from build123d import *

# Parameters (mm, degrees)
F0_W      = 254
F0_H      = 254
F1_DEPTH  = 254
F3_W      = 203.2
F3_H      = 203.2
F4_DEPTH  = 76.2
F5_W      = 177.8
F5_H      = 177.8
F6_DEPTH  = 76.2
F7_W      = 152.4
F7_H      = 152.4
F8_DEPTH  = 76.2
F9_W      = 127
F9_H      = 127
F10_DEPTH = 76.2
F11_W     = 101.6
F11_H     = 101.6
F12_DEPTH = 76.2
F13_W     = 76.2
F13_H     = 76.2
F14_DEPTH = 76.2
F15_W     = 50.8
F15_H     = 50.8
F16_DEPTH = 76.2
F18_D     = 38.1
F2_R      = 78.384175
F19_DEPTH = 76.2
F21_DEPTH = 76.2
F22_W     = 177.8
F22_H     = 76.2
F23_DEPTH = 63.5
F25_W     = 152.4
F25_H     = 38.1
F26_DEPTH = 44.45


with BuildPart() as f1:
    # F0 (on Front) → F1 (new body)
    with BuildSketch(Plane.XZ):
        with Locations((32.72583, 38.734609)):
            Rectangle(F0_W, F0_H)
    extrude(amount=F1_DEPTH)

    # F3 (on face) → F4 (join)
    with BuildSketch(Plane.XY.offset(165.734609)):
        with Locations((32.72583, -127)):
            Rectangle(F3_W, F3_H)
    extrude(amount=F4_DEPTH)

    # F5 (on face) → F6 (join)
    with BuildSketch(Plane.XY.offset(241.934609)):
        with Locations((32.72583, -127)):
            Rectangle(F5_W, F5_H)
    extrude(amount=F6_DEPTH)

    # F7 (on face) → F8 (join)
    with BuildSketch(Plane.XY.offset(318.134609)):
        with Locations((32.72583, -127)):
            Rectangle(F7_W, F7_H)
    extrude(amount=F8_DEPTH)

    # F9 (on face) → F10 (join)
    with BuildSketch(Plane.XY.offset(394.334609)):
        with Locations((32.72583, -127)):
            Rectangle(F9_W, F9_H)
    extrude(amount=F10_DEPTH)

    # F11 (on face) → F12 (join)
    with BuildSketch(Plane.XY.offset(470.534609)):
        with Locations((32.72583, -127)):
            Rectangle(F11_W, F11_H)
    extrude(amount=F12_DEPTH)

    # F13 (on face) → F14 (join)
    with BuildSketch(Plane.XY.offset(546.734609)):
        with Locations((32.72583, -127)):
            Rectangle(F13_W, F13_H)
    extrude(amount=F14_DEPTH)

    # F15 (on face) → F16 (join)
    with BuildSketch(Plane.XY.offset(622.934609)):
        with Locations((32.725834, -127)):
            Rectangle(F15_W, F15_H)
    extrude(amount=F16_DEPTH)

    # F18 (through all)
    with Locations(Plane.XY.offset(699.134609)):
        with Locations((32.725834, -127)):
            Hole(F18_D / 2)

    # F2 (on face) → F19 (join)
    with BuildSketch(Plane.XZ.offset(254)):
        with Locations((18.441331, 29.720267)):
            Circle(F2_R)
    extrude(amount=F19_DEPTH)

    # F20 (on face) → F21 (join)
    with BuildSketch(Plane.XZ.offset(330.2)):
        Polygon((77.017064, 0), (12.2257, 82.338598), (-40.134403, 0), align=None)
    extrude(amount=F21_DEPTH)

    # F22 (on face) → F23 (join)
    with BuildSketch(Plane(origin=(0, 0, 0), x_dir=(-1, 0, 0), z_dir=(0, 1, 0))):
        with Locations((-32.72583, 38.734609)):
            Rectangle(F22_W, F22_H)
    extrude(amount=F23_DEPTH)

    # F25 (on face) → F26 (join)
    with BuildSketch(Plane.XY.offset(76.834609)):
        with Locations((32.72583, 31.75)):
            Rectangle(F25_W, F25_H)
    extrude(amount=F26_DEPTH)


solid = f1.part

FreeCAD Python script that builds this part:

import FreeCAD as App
import Part
import Sketcher

V = App.Vector
Q = App.Units.Quantity

doc = App.newDocument("Part")
params = doc.addObject("Spreadsheet::Sheet", "Params")
for row, (alias, value) in enumerate([
    ("sketch1_width", "10 in"),
    ("pad1_length", "10 in"),
    ("sketch2_width", "8 in"),
    ("pad2_length", "3 in"),
    ("sketch3_width", "7 in"),
    ("pad3_length", "3 in"),
    ("sketch4_width", "6 in"),
    ("pad4_length", "3 in"),
    ("sketch5_width", "5 in"),
    ("pad5_length", "3 in"),
    ("sketch6_width", "4 in"),
    ("pad6_length", "3 in"),
    ("sketch7_width", "3 in"),
    ("pad7_length", "3 in"),
    ("sketch8_width", "2 in"),
    ("pad8_length", "3 in"),
    ("sketch9_diameter", "1.5 in"),
    ("hole_diameter", "1.5 in"),
    ("pad9_length", "3 in"),
    ("pad10_length", "3 in"),
    ("sketch12_width", "7 in"),
    ("sketch12_height", "3 in"),
    ("pad11_length", "2.5 in"),
    ("sketch13_width", "6 in"),
    ("sketch13_height", "1.5 in"),
    ("pad12_length", "1.75 in"),
], start=1):
    params.set(f"A{row}", alias)
    params.set(f"B{row}", "=" + value)
    params.setAlias(f"B{row}", alias)

body = doc.addObject("PartDesign::Body", "Body")

# Sketch on XZ plane
sketch1 = doc.addObject("Sketcher::SketchObject", "Sketch")
body.addObject(sketch1)
sketch1.AttachmentSupport = (doc.XZ_Plane, [""])
sketch1.MapMode = "FlatFace"
sketch1.addGeometry(Part.LineSegment(V(-94.27417, 165.734609, 0), V(-94.27417, -88.265391, 0)), False)
sketch1.addGeometry(Part.LineSegment(V(-94.27417, -88.265391, 0), V(159.72583, -88.265391, 0)), False)
sketch1.addGeometry(Part.LineSegment(V(159.72583, -88.265391, 0), V(159.72583, 165.734609, 0)), False)
sketch1.addGeometry(Part.LineSegment(V(159.72583, 165.734609, 0), V(-94.27417, 165.734609, 0)), False)
sketch1.addConstraint(Sketcher.Constraint("Coincident", 0, 2, 1, 1))
sketch1.addConstraint(Sketcher.Constraint("Coincident", 1, 2, 2, 1))
sketch1.addConstraint(Sketcher.Constraint("Coincident", 2, 2, 3, 1))
sketch1.addConstraint(Sketcher.Constraint("Coincident", 3, 2, 0, 1))
sketch1.addConstraint(Sketcher.Constraint("Vertical", 0))
sketch1.addConstraint(Sketcher.Constraint("Horizontal", 1))
sketch1.addConstraint(Sketcher.Constraint("Vertical", 2))
sketch1.addConstraint(Sketcher.Constraint("Horizontal", 3))
sketch1.addConstraint(Sketcher.Constraint("Equal", 3, 0))
sketch1.addConstraint(Sketcher.Constraint("DistanceX", 1, 1, 1, 2, Q("10 in")))
sketch1.addConstraint(Sketcher.Constraint("DistanceX", 0, 2, -1, 1, Q("94.27417 mm")))
sketch1.addConstraint(Sketcher.Constraint("DistanceY", 0, 2, -1, 1, Q("88.265391 mm")))
sketch1.setExpression("Constraints[9]", "Params.sketch1_width")
pad1 = doc.addObject("PartDesign::Pad", "Pad")
body.addObject(pad1)
pad1.Profile = sketch1
pad1.setExpression("Length", "Params.pad1_length")

# Sketch on XY plane
sketch2 = doc.addObject("Sketcher::SketchObject", "Sketch001")
body.addObject(sketch2)
sketch2.AttachmentSupport = (doc.XY_Plane, [""])
sketch2.MapMode = "FlatFace"
sketch2.AttachmentOffset = App.Placement(V(0, 0, 165.734609), App.Rotation())
sketch2.addGeometry(Part.LineSegment(V(-68.87417, -25.4, 0), V(-68.87417, -228.6, 0)), False)
sketch2.addGeometry(Part.LineSegment(V(-68.87417, -228.6, 0), V(134.32583, -228.6, 0)), False)
sketch2.addGeometry(Part.LineSegment(V(134.32583, -228.6, 0), V(134.32583, -25.4, 0)), False)
sketch2.addGeometry(Part.LineSegment(V(134.32583, -25.4, 0), V(-68.87417, -25.4, 0)), False)
sketch2.addConstraint(Sketcher.Constraint("Coincident", 0, 2, 1, 1))
sketch2.addConstraint(Sketcher.Constraint("Coincident", 1, 2, 2, 1))
sketch2.addConstraint(Sketcher.Constraint("Coincident", 2, 2, 3, 1))
sketch2.addConstraint(Sketcher.Constraint("Coincident", 3, 2, 0, 1))
sketch2.addConstraint(Sketcher.Constraint("Vertical", 0))
sketch2.addConstraint(Sketcher.Constraint("Horizontal", 1))
sketch2.addConstraint(Sketcher.Constraint("Vertical", 2))
sketch2.addConstraint(Sketcher.Constraint("Horizontal", 3))
sketch2.addConstraint(Sketcher.Constraint("Equal", 3, 0))
sketch2.addConstraint(Sketcher.Constraint("DistanceX", 1, 1, 1, 2, Q("8 in")))
sketch2.addConstraint(Sketcher.Constraint("DistanceY", 0, 2, -1, 1, Q("9 in")))
sketch2.addConstraint(Sketcher.Constraint("DistanceX", 0, 2, -1, 1, Q("68.87417 mm")))
sketch2.setExpression("Constraints[9]", "Params.sketch2_width")
pad2 = doc.addObject("PartDesign::Pad", "Pad001")
body.addObject(pad2)
pad2.Profile = sketch2
pad2.setExpression("Length", "Params.pad2_length")

# Sketch on XY plane
sketch3 = doc.addObject("Sketcher::SketchObject", "Sketch002")
body.addObject(sketch3)
sketch3.AttachmentSupport = (doc.XY_Plane, [""])
sketch3.MapMode = "FlatFace"
sketch3.AttachmentOffset = App.Placement(V(0, 0, 241.934609), App.Rotation())
sketch3.addGeometry(Part.LineSegment(V(-56.17417, -38.1, 0), V(-56.17417, -215.9, 0)), False)
sketch3.addGeometry(Part.LineSegment(V(-56.17417, -215.9, 0), V(121.62583, -215.9, 0)), False)
sketch3.addGeometry(Part.LineSegment(V(121.62583, -215.9, 0), V(121.62583, -38.1, 0)), False)
sketch3.addGeometry(Part.LineSegment(V(121.62583, -38.1, 0), V(-56.17417, -38.1, 0)), False)
sketch3.addConstraint(Sketcher.Constraint("Coincident", 0, 2, 1, 1))
sketch3.addConstraint(Sketcher.Constraint("Coincident", 1, 2, 2, 1))
sketch3.addConstraint(Sketcher.Constraint("Coincident", 2, 2, 3, 1))
sketch3.addConstraint(Sketcher.Constraint("Coincident", 3, 2, 0, 1))
sketch3.addConstraint(Sketcher.Constraint("Vertical", 0))
sketch3.addConstraint(Sketcher.Constraint("Horizontal", 1))
sketch3.addConstraint(Sketcher.Constraint("Vertical", 2))
sketch3.addConstraint(Sketcher.Constraint("Horizontal", 3))
sketch3.addConstraint(Sketcher.Constraint("Equal", 3, 0))
sketch3.addConstraint(Sketcher.Constraint("DistanceX", 1, 1, 1, 2, Q("7 in")))
sketch3.addConstraint(Sketcher.Constraint("DistanceY", 0, 2, -1, 1, Q("8.5 in")))
sketch3.addConstraint(Sketcher.Constraint("DistanceX", 0, 2, -1, 1, Q("56.17417 mm")))
sketch3.setExpression("Constraints[9]", "Params.sketch3_width")
pad3 = doc.addObject("PartDesign::Pad", "Pad002")
body.addObject(pad3)
pad3.Profile = sketch3
pad3.setExpression("Length", "Params.pad3_length")

# Sketch on XY plane
sketch4 = doc.addObject("Sketcher::SketchObject", "Sketch003")
body.addObject(sketch4)
sketch4.AttachmentSupport = (doc.XY_Plane, [""])
sketch4.MapMode = "FlatFace"
sketch4.AttachmentOffset = App.Placement(V(0, 0, 318.134609), App.Rotation())
sketch4.addGeometry(Part.LineSegment(V(-43.47417, -50.8, 0), V(-43.47417, -203.2, 0)), False)
sketch4.addGeometry(Part.LineSegment(V(-43.47417, -203.2, 0), V(108.92583, -203.2, 0)), False)
sketch4.addGeometry(Part.LineSegment(V(108.92583, -203.2, 0), V(108.92583, -50.8, 0)), False)
sketch4.addGeometry(Part.LineSegment(V(108.92583, -50.8, 0), V(-43.47417, -50.8, 0)), False)
sketch4.addConstraint(Sketcher.Constraint("Coincident", 0, 2, 1, 1))
sketch4.addConstraint(Sketcher.Constraint("Coincident", 1, 2, 2, 1))
sketch4.addConstraint(Sketcher.Constraint("Coincident", 2, 2, 3, 1))
sketch4.addConstraint(Sketcher.Constraint("Coincident", 3, 2, 0, 1))
sketch4.addConstraint(Sketcher.Constraint("Vertical", 0))
sketch4.addConstraint(Sketcher.Constraint("Horizontal", 1))
sketch4.addConstraint(Sketcher.Constraint("Vertical", 2))
sketch4.addConstraint(Sketcher.Constraint("Horizontal", 3))
sketch4.addConstraint(Sketcher.Constraint("Equal", 3, 0))
sketch4.addConstraint(Sketcher.Constraint("DistanceX", 1, 1, 1, 2, Q("6 in")))
sketch4.addConstraint(Sketcher.Constraint("DistanceY", 0, 2, -1, 1, Q("8 in")))
sketch4.addConstraint(Sketcher.Constraint("DistanceX", 0, 2, -1, 1, Q("43.47417 mm")))
sketch4.setExpression("Constraints[9]", "Params.sketch4_width")
pad4 = doc.addObject("PartDesign::Pad", "Pad003")
body.addObject(pad4)
pad4.Profile = sketch4
pad4.setExpression("Length", "Params.pad4_length")

# Sketch on XY plane
sketch5 = doc.addObject("Sketcher::SketchObject", "Sketch004")
body.addObject(sketch5)
sketch5.AttachmentSupport = (doc.XY_Plane, [""])
sketch5.MapMode = "FlatFace"
sketch5.AttachmentOffset = App.Placement(V(0, 0, 394.334609), App.Rotation())
sketch5.addGeometry(Part.LineSegment(V(-30.77417, -63.5, 0), V(-30.77417, -190.5, 0)), False)
sketch5.addGeometry(Part.LineSegment(V(-30.77417, -190.5, 0), V(96.22583, -190.5, 0)), False)
sketch5.addGeometry(Part.LineSegment(V(96.22583, -190.5, 0), V(96.22583, -63.5, 0)), False)
sketch5.addGeometry(Part.LineSegment(V(96.22583, -63.5, 0), V(-30.77417, -63.5, 0)), False)
sketch5.addConstraint(Sketcher.Constraint("Coincident", 0, 2, 1, 1))
sketch5.addConstraint(Sketcher.Constraint("Coincident", 1, 2, 2, 1))
sketch5.addConstraint(Sketcher.Constraint("Coincident", 2, 2, 3, 1))
sketch5.addConstraint(Sketcher.Constraint("Coincident", 3, 2, 0, 1))
sketch5.addConstraint(Sketcher.Constraint("Vertical", 0))
sketch5.addConstraint(Sketcher.Constraint("Horizontal", 1))
sketch5.addConstraint(Sketcher.Constraint("Vertical", 2))
sketch5.addConstraint(Sketcher.Constraint("Horizontal", 3))
sketch5.addConstraint(Sketcher.Constraint("Equal", 3, 0))
sketch5.addConstraint(Sketcher.Constraint("DistanceX", 1, 1, 1, 2, Q("5 in")))
sketch5.addConstraint(Sketcher.Constraint("DistanceY", 0, 2, -1, 1, Q("7.5 in")))
sketch5.addConstraint(Sketcher.Constraint("DistanceX", 0, 2, -1, 1, Q("30.77417 mm")))
sketch5.setExpression("Constraints[9]", "Params.sketch5_width")
pad5 = doc.addObject("PartDesign::Pad", "Pad004")
body.addObject(pad5)
pad5.Profile = sketch5
pad5.setExpression("Length", "Params.pad5_length")

# Sketch on XY plane
sketch6 = doc.addObject("Sketcher::SketchObject", "Sketch005")
body.addObject(sketch6)
sketch6.AttachmentSupport = (doc.XY_Plane, [""])
sketch6.MapMode = "FlatFace"
sketch6.AttachmentOffset = App.Placement(V(0, 0, 470.534609), App.Rotation())
sketch6.addGeometry(Part.LineSegment(V(-18.07417, -76.2, 0), V(-18.07417, -177.8, 0)), False)
sketch6.addGeometry(Part.LineSegment(V(-18.07417, -177.8, 0), V(83.52583, -177.8, 0)), False)
sketch6.addGeometry(Part.LineSegment(V(83.52583, -177.8, 0), V(83.52583, -76.2, 0)), False)
sketch6.addGeometry(Part.LineSegment(V(83.52583, -76.2, 0), V(-18.07417, -76.2, 0)), False)
sketch6.addConstraint(Sketcher.Constraint("Coincident", 0, 2, 1, 1))
sketch6.addConstraint(Sketcher.Constraint("Coincident", 1, 2, 2, 1))
sketch6.addConstraint(Sketcher.Constraint("Coincident", 2, 2, 3, 1))
sketch6.addConstraint(Sketcher.Constraint("Coincident", 3, 2, 0, 1))
sketch6.addConstraint(Sketcher.Constraint("Vertical", 0))
sketch6.addConstraint(Sketcher.Constraint("Horizontal", 1))
sketch6.addConstraint(Sketcher.Constraint("Vertical", 2))
sketch6.addConstraint(Sketcher.Constraint("Horizontal", 3))
sketch6.addConstraint(Sketcher.Constraint("Equal", 3, 0))
sketch6.addConstraint(Sketcher.Constraint("DistanceX", 1, 1, 1, 2, Q("4 in")))
sketch6.addConstraint(Sketcher.Constraint("DistanceY", 0, 2, -1, 1, Q("7 in")))
sketch6.addConstraint(Sketcher.Constraint("DistanceX", 0, 2, -1, 1, Q("18.07417 mm")))
sketch6.setExpression("Constraints[9]", "Params.sketch6_width")
pad6 = doc.addObject("PartDesign::Pad", "Pad005")
body.addObject(pad6)
pad6.Profile = sketch6
pad6.setExpression("Length", "Params.pad6_length")

# Sketch on XY plane
sketch7 = doc.addObject("Sketcher::SketchObject", "Sketch006")
body.addObject(sketch7)
sketch7.AttachmentSupport = (doc.XY_Plane, [""])
sketch7.MapMode = "FlatFace"
sketch7.AttachmentOffset = App.Placement(V(0, 0, 546.734609), App.Rotation())
sketch7.addGeometry(Part.LineSegment(V(-5.37417, -88.9, 0), V(-5.37417, -165.1, 0)), False)
sketch7.addGeometry(Part.LineSegment(V(-5.37417, -165.1, 0), V(70.82583, -165.1, 0)), False)
sketch7.addGeometry(Part.LineSegment(V(70.82583, -165.1, 0), V(70.82583, -88.9, 0)), False)
sketch7.addGeometry(Part.LineSegment(V(70.82583, -88.9, 0), V(-5.37417, -88.9, 0)), False)
sketch7.addConstraint(Sketcher.Constraint("Coincident", 0, 2, 1, 1))
sketch7.addConstraint(Sketcher.Constraint("Coincident", 1, 2, 2, 1))
sketch7.addConstraint(Sketcher.Constraint("Coincident", 2, 2, 3, 1))
sketch7.addConstraint(Sketcher.Constraint("Coincident", 3, 2, 0, 1))
sketch7.addConstraint(Sketcher.Constraint("Vertical", 0))
sketch7.addConstraint(Sketcher.Constraint("Horizontal", 1))
sketch7.addConstraint(Sketcher.Constraint("Vertical", 2))
sketch7.addConstraint(Sketcher.Constraint("Horizontal", 3))
sketch7.addConstraint(Sketcher.Constraint("Equal", 3, 0))
sketch7.addConstraint(Sketcher.Constraint("DistanceX", 1, 1, 1, 2, Q("3 in")))
sketch7.addConstraint(Sketcher.Constraint("DistanceY", 0, 2, -1, 1, Q("6.5 in")))
sketch7.addConstraint(Sketcher.Constraint("DistanceX", 0, 2, -1, 1, Q("5.37417 mm")))
sketch7.setExpression("Constraints[9]", "Params.sketch7_width")
pad7 = doc.addObject("PartDesign::Pad", "Pad006")
body.addObject(pad7)
pad7.Profile = sketch7
pad7.setExpression("Length", "Params.pad7_length")

# Sketch on XY plane
sketch8 = doc.addObject("Sketcher::SketchObject", "Sketch007")
body.addObject(sketch8)
sketch8.AttachmentSupport = (doc.XY_Plane, [""])
sketch8.MapMode = "FlatFace"
sketch8.AttachmentOffset = App.Placement(V(0, 0, 622.934609), App.Rotation())
sketch8.addGeometry(Part.LineSegment(V(7.325834, -101.6, 0), V(7.325834, -152.4, 0)), False)
sketch8.addGeometry(Part.LineSegment(V(7.325834, -152.4, 0), V(58.125834, -152.4, 0)), False)
sketch8.addGeometry(Part.LineSegment(V(58.125834, -152.4, 0), V(58.125834, -101.6, 0)), False)
sketch8.addGeometry(Part.LineSegment(V(58.125834, -101.6, 0), V(7.325834, -101.6, 0)), False)
sketch8.addConstraint(Sketcher.Constraint("Coincident", 0, 2, 1, 1))
sketch8.addConstraint(Sketcher.Constraint("Coincident", 1, 2, 2, 1))
sketch8.addConstraint(Sketcher.Constraint("Coincident", 2, 2, 3, 1))
sketch8.addConstraint(Sketcher.Constraint("Coincident", 3, 2, 0, 1))
sketch8.addConstraint(Sketcher.Constraint("Vertical", 0))
sketch8.addConstraint(Sketcher.Constraint("Horizontal", 1))
sketch8.addConstraint(Sketcher.Constraint("Vertical", 2))
sketch8.addConstraint(Sketcher.Constraint("Horizontal", 3))
sketch8.addConstraint(Sketcher.Constraint("Equal", 3, 0))
sketch8.addConstraint(Sketcher.Constraint("DistanceX", 1, 1, 1, 2, Q("2 in")))
sketch8.addConstraint(Sketcher.Constraint("DistanceY", 0, 2, -1, 1, Q("6 in")))
sketch8.addConstraint(Sketcher.Constraint("DistanceX", -1, 1, 0, 2, Q("7.325834 mm")))
sketch8.setExpression("Constraints[9]", "Params.sketch8_width")
pad8 = doc.addObject("PartDesign::Pad", "Pad007")
body.addObject(pad8)
pad8.Profile = sketch8
pad8.setExpression("Length", "Params.pad8_length")

# Sketch on XY plane
sketch9 = doc.addObject("Sketcher::SketchObject", "Sketch008")
body.addObject(sketch9)
sketch9.AttachmentSupport = (doc.XY_Plane, [""])
sketch9.MapMode = "FlatFace"
sketch9.AttachmentOffset = App.Placement(V(0, 0, 699.134609), App.Rotation())
sketch9.addGeometry(Part.Circle(V(32.725834, -127, 0), V(0, 0, 1), 19.05), False)
sketch9.addConstraint(Sketcher.Constraint("Diameter", 0, Q("1.5 in")))
sketch9.addConstraint(Sketcher.Constraint("DistanceY", 0, 3, -1, 1, Q("5 in")))
sketch9.addConstraint(Sketcher.Constraint("DistanceX", -1, 1, 0, 3, Q("32.725834 mm")))
sketch9.setExpression("Constraints[0]", "Params.sketch9_diameter")
doc.recompute()
hole = doc.addObject("PartDesign::Hole", "Hole")
body.addObject(hole)
hole.Profile = sketch9
hole.ThreadType = "None"
hole.setExpression("Diameter", "Params.hole_diameter")
hole.DepthType = "ThroughAll"

# Sketch on XZ plane
sketch10 = doc.addObject("Sketcher::SketchObject", "Sketch009")
body.addObject(sketch10)
sketch10.AttachmentSupport = (doc.XZ_Plane, [""])
sketch10.MapMode = "FlatFace"
sketch10.AttachmentOffset = App.Placement(V(0, 0, 10 * 25.4), App.Rotation())
sketch10.addGeometry(Part.Circle(V(18.441331, 29.720267, 0), V(0, 0, 1), 78.384175), False)
sketch10.addConstraint(Sketcher.Constraint("Diameter", 0, Q("156.76835 mm")))
sketch10.addConstraint(Sketcher.Constraint("DistanceX", -1, 1, 0, 3, Q("18.441331 mm")))
sketch10.addConstraint(Sketcher.Constraint("DistanceY", -1, 1, 0, 3, Q("29.720267 mm")))
pad9 = doc.addObject("PartDesign::Pad", "Pad008")
body.addObject(pad9)
pad9.Profile = sketch10
pad9.setExpression("Length", "Params.pad9_length")

# Sketch on XZ plane
sketch11 = doc.addObject("Sketcher::SketchObject", "Sketch010")
body.addObject(sketch11)
sketch11.AttachmentSupport = (doc.XZ_Plane, [""])
sketch11.MapMode = "FlatFace"
sketch11.AttachmentOffset = App.Placement(V(0, 0, 13 * 25.4), App.Rotation())
sketch11.addGeometry(Part.LineSegment(V(77.017064, 0, 0), V(12.2257, 82.338598, 0)), False)
sketch11.addGeometry(Part.LineSegment(V(12.2257, 82.338598, 0), V(-40.134403, 0, 0)), False)
sketch11.addGeometry(Part.LineSegment(V(-40.134403, 0, 0), V(77.017064, 0, 0)), False)
sketch11.addConstraint(Sketcher.Constraint("Coincident", 0, 2, 1, 1))
sketch11.addConstraint(Sketcher.Constraint("Coincident", 1, 2, 2, 1))
sketch11.addConstraint(Sketcher.Constraint("Coincident", 2, 2, 0, 1))
sketch11.addConstraint(Sketcher.Constraint("Horizontal", 2))
sketch11.addConstraint(Sketcher.Constraint("PointOnObject", 1, 2, -1))
sketch11.addConstraint(Sketcher.Constraint("DistanceX", -1, 1, 0, 2, Q("12.2257 mm")))
sketch11.addConstraint(Sketcher.Constraint("DistanceY", -1, 1, 0, 2, Q("82.338598 mm")))
sketch11.addConstraint(Sketcher.Constraint("Distance", 0, Q("104.773878 mm")))
sketch11.addConstraint(Sketcher.Constraint("DistanceX", 2, 1, 2, 2, Q("117.151467 mm")))
pad10 = doc.addObject("PartDesign::Pad", "Pad009")
body.addObject(pad10)
pad10.Profile = sketch11
pad10.setExpression("Length", "Params.pad10_length")

# Sketch on XZ plane
sketch12 = doc.addObject("Sketcher::SketchObject", "Sketch011")
body.addObject(sketch12)
sketch12.AttachmentSupport = (doc.XZ_Plane, [""])
sketch12.MapMode = "FlatFace"
sketch12.addGeometry(Part.LineSegment(V(121.62583, 76.834609, 0), V(121.62583, 0.634609, 0)), False)
sketch12.addGeometry(Part.LineSegment(V(121.62583, 0.634609, 0), V(-56.17417, 0.634609, 0)), False)
sketch12.addGeometry(Part.LineSegment(V(-56.17417, 0.634609, 0), V(-56.17417, 76.834609, 0)), False)
sketch12.addGeometry(Part.LineSegment(V(-56.17417, 76.834609, 0), V(121.62583, 76.834609, 0)), False)
sketch12.addConstraint(Sketcher.Constraint("Coincident", 0, 2, 1, 1))
sketch12.addConstraint(Sketcher.Constraint("Coincident", 1, 2, 2, 1))
sketch12.addConstraint(Sketcher.Constraint("Coincident", 2, 2, 3, 1))
sketch12.addConstraint(Sketcher.Constraint("Coincident", 3, 2, 0, 1))
sketch12.addConstraint(Sketcher.Constraint("Vertical", 0))
sketch12.addConstraint(Sketcher.Constraint("Horizontal", 1))
sketch12.addConstraint(Sketcher.Constraint("Vertical", 2))
sketch12.addConstraint(Sketcher.Constraint("Horizontal", 3))
sketch12.addConstraint(Sketcher.Constraint("DistanceX", 1, 2, 1, 1, Q("7 in")))
sketch12.addConstraint(Sketcher.Constraint("DistanceY", 0, 2, 0, 1, Q("3 in")))
sketch12.addConstraint(Sketcher.Constraint("DistanceX", -1, 1, 0, 2, Q("121.62583 mm")))
sketch12.addConstraint(Sketcher.Constraint("DistanceY", -1, 1, 0, 2, Q("0.634609 mm")))
sketch12.setExpression("Constraints[8]", "Params.sketch12_width")
sketch12.setExpression("Constraints[9]", "Params.sketch12_height")
pad11 = doc.addObject("PartDesign::Pad", "Pad010")
body.addObject(pad11)
pad11.Profile = sketch12
pad11.setExpression("Length", "Params.pad11_length")
pad11.Reversed = True

# Sketch on XY plane
sketch13 = doc.addObject("Sketcher::SketchObject", "Sketch012")
body.addObject(sketch13)
sketch13.AttachmentSupport = (doc.XY_Plane, [""])
sketch13.MapMode = "FlatFace"
sketch13.AttachmentOffset = App.Placement(V(0, 0, 76.834609), App.Rotation())
sketch13.addGeometry(Part.LineSegment(V(-43.47417, 50.8, 0), V(-43.47417, 12.7, 0)), False)
sketch13.addGeometry(Part.LineSegment(V(-43.47417, 12.7, 0), V(108.92583, 12.7, 0)), False)
sketch13.addGeometry(Part.LineSegment(V(108.92583, 12.7, 0), V(108.92583, 50.8, 0)), False)
sketch13.addGeometry(Part.LineSegment(V(108.92583, 50.8, 0), V(-43.47417, 50.8, 0)), False)
sketch13.addConstraint(Sketcher.Constraint("Coincident", 0, 2, 1, 1))
sketch13.addConstraint(Sketcher.Constraint("Coincident", 1, 2, 2, 1))
sketch13.addConstraint(Sketcher.Constraint("Coincident", 2, 2, 3, 1))
sketch13.addConstraint(Sketcher.Constraint("Coincident", 3, 2, 0, 1))
sketch13.addConstraint(Sketcher.Constraint("Vertical", 0))
sketch13.addConstraint(Sketcher.Constraint("Horizontal", 1))
sketch13.addConstraint(Sketcher.Constraint("Vertical", 2))
sketch13.addConstraint(Sketcher.Constraint("Horizontal", 3))
sketch13.addConstraint(Sketcher.Constraint("DistanceX", 1, 1, 1, 2, Q("6 in")))
sketch13.addConstraint(Sketcher.Constraint("DistanceY", 0, 2, 0, 1, Q("1.5 in")))
sketch13.addConstraint(Sketcher.Constraint("DistanceY", -1, 1, 2, 2, Q("2 in")))
sketch13.addConstraint(Sketcher.Constraint("DistanceX", 0, 2, -1, 1, Q("43.47417 mm")))
sketch13.setExpression("Constraints[8]", "Params.sketch13_width")
sketch13.setExpression("Constraints[9]", "Params.sketch13_height")
pad12 = doc.addObject("PartDesign::Pad", "Pad011")
body.addObject(pad12)
pad12.Profile = sketch13
pad12.setExpression("Length", "Params.pad12_length")

doc.recompute()
